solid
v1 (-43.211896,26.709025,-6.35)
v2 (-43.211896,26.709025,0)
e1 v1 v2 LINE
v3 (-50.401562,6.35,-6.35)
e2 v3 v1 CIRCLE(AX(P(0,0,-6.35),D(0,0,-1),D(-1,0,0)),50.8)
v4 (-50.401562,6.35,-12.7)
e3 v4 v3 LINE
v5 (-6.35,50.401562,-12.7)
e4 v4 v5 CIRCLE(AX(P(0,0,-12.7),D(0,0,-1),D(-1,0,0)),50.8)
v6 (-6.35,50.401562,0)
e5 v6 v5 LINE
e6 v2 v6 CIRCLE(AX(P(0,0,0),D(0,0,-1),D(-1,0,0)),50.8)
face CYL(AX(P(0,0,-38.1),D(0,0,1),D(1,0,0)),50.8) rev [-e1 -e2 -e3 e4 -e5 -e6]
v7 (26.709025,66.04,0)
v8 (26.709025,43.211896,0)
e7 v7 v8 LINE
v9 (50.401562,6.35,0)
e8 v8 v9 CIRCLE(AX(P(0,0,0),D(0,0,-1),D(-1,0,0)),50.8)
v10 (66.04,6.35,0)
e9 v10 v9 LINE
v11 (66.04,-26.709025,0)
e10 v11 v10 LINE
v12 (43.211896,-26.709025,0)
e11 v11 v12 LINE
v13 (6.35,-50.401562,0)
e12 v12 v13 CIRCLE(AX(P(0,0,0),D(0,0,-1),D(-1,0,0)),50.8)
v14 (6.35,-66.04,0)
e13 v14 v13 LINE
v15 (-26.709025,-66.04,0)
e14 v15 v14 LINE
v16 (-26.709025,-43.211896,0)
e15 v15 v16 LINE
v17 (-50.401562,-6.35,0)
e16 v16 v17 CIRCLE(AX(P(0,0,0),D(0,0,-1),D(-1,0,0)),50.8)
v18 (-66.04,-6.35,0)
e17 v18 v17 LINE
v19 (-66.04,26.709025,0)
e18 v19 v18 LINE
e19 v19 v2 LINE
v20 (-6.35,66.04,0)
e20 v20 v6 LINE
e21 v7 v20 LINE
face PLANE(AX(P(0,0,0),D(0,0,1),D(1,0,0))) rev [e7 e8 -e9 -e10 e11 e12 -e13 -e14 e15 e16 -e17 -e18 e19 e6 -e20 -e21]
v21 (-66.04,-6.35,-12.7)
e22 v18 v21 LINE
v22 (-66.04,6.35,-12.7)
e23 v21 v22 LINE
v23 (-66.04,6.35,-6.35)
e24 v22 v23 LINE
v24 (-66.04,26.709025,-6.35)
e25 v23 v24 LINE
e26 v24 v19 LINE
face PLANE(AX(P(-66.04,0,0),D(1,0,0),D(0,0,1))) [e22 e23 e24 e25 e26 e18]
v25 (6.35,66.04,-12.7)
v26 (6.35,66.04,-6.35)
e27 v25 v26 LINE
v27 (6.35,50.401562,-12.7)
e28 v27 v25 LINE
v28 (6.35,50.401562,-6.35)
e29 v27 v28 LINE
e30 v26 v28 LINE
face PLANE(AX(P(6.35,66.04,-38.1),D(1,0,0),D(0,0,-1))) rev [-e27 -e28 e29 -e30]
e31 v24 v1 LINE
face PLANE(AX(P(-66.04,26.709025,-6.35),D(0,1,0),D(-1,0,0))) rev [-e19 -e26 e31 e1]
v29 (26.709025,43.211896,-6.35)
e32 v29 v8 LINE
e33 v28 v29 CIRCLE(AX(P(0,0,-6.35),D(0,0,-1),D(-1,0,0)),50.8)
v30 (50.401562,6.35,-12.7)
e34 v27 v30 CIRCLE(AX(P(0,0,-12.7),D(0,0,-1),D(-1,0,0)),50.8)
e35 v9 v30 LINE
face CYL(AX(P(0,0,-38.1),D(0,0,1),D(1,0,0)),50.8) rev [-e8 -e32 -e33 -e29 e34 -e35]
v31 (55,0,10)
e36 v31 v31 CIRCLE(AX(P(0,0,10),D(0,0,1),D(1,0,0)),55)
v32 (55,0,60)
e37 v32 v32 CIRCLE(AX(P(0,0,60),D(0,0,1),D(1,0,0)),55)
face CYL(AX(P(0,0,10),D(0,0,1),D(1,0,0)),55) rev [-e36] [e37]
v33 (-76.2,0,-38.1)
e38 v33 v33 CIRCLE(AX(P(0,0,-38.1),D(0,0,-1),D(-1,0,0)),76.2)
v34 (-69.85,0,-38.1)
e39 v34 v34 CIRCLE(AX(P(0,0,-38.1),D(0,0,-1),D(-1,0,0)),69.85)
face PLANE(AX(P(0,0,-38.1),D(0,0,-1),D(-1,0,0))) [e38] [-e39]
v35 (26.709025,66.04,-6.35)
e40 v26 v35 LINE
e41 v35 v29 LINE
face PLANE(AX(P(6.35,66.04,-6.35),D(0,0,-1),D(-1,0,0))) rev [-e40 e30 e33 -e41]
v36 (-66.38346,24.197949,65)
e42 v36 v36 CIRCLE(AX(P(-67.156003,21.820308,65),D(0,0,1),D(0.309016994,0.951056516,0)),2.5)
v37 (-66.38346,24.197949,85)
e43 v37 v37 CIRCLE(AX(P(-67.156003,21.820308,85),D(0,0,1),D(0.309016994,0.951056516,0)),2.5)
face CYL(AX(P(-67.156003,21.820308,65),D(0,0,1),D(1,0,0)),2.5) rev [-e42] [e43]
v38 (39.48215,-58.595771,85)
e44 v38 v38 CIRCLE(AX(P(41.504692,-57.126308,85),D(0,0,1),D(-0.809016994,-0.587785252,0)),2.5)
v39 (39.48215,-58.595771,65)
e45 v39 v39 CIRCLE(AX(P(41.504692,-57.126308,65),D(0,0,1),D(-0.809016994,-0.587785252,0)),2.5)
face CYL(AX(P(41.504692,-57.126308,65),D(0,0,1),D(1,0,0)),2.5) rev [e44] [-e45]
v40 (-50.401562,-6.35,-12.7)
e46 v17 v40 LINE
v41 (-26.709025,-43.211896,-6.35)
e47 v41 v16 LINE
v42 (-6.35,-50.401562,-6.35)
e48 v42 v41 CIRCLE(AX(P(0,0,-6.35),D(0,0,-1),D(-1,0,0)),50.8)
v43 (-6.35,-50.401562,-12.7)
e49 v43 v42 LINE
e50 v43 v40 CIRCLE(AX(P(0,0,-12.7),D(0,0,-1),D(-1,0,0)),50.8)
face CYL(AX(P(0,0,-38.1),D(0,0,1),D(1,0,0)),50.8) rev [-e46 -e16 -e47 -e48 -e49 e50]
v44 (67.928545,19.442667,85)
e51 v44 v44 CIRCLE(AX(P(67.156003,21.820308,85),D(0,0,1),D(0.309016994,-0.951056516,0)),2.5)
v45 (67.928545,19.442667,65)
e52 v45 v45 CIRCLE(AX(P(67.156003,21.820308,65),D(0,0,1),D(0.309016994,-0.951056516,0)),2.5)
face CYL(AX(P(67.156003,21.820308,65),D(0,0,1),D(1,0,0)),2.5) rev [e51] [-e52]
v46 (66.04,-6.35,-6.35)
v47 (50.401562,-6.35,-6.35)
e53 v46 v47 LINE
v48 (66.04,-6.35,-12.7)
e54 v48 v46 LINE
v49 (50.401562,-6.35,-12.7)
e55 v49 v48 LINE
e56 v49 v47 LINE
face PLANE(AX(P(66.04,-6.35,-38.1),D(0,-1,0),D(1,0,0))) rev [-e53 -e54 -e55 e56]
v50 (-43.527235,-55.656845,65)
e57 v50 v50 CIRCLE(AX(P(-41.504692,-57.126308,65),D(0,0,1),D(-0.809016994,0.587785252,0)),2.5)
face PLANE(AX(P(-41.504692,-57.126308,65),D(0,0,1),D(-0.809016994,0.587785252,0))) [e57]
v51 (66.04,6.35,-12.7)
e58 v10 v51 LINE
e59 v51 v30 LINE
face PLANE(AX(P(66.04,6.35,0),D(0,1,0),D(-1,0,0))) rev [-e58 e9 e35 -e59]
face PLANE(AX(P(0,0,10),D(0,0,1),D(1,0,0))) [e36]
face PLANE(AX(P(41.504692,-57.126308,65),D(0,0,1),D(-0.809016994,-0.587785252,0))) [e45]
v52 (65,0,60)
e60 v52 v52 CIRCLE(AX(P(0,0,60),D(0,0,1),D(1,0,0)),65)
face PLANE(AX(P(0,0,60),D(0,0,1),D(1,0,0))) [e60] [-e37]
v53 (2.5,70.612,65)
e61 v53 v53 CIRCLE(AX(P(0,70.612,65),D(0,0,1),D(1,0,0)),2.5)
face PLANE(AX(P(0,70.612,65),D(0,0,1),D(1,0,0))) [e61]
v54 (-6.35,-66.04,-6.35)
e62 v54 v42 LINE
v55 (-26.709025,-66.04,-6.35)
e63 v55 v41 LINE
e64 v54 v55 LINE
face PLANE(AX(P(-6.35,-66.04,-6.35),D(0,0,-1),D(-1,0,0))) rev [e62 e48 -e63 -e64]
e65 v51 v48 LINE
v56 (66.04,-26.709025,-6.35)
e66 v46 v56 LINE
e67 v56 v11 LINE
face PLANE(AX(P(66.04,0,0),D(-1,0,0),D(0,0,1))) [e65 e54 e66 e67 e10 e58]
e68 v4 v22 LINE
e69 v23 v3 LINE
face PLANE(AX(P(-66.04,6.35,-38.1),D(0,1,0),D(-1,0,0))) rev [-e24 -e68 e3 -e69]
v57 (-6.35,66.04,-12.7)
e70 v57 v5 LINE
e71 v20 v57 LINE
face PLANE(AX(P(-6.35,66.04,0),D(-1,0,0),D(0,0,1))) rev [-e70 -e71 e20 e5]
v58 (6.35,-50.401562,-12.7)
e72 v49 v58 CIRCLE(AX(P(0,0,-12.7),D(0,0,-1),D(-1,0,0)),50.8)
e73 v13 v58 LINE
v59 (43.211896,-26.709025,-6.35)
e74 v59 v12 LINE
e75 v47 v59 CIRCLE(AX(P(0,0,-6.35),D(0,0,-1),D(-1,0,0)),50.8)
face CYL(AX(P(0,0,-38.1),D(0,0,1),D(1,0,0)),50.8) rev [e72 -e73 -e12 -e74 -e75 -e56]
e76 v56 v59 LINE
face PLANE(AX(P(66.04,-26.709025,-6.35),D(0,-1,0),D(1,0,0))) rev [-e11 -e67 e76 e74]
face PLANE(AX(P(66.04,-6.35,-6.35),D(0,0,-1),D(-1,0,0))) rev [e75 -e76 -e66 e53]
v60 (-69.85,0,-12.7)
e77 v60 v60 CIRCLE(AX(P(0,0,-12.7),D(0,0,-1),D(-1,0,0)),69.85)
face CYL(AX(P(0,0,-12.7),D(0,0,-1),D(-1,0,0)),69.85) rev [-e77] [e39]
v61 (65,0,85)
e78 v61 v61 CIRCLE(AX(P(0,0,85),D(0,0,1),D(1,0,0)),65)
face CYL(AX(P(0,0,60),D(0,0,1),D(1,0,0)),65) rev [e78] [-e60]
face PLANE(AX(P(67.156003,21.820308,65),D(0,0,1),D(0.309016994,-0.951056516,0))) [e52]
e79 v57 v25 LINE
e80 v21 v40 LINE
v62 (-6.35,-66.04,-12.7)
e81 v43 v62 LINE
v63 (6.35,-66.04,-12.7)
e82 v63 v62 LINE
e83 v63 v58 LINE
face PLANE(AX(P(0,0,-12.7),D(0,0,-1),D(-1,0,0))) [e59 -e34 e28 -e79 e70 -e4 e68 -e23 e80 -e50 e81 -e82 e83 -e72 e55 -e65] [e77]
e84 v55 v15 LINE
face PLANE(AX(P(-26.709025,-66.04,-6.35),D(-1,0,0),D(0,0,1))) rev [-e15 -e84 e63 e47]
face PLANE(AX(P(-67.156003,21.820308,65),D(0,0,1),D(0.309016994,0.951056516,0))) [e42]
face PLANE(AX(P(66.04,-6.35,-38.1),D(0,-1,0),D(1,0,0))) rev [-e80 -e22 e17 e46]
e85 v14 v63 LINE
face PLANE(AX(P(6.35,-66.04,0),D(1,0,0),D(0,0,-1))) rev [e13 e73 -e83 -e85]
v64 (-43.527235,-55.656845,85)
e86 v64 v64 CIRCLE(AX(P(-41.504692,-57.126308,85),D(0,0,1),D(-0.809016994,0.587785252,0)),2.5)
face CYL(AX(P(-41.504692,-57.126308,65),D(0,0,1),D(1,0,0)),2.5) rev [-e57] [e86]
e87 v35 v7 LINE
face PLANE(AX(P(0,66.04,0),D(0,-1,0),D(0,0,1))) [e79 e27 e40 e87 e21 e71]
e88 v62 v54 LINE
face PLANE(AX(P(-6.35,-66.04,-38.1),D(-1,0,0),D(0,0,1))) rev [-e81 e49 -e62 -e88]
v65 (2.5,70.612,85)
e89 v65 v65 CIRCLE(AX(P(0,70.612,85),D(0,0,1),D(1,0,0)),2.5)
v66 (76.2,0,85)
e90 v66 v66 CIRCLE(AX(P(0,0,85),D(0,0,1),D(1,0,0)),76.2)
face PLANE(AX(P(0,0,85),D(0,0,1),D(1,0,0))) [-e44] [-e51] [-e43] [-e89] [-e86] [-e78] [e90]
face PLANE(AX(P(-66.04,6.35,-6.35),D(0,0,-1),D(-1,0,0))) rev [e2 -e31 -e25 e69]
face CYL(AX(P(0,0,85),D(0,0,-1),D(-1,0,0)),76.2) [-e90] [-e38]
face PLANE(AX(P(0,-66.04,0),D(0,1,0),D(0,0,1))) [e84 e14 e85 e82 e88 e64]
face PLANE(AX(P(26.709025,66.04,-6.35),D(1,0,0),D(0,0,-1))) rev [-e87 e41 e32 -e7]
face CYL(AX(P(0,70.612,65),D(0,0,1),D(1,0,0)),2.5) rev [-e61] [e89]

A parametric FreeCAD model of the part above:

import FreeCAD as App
import Part
import Sketcher
Q = App.Units.Quantity


def add_polygon(sketch, points):
    """Adds a closed chain of lines whose ends are joined by coincident constraints."""
    first, n = sketch.GeometryCount, len(points)
    for a, b in zip(points, points[1:] + points[:1]):
        sketch.addGeometry(Part.LineSegment(App.Vector(*a, 0), App.Vector(*b, 0)), False)
    for i in range(n):
        sketch.addConstraint(Sketcher.Constraint("Coincident", first + i, 2, first + (i + 1) % n, 1))

doc = App.newDocument("Part")
params = doc.addObject("Spreadsheet::Sheet", "Params")
for row, (alias, value) in enumerate([
    ("sketch1_diameter", "6 in"),
    ("pad1_length", "85 mm"),
    ("pocket1_length", "25 mm"),
    ("pocket2_length", "50 mm"),
    ("pocket3_length", "20 mm"),
    ("sketch5_diameter", "6 in"),
    ("sketch5_diameter2", "4 in"),
    ("pad2_length", "1.5 in"),
    ("sketch6_width", "0.5 in"),
    ("sketch6_height", "1.5 in"),
    ("sketch6_height2", "1.25 in"),
    ("pocket4_length", "2.6 in"),
    ("sketch7_diameter", "5.5 in"),
    ("pocket5_length", "1 in"),
], start=1):
    params.set(f"A{row}", alias)
    params.set(f"B{row}", "=" + value)
    params.setAlias(f"B{row}", alias)

body = doc.addObject("PartDesign::Body", "Body")

# Sketch on XY plane
sketch1 = body.newObject("Sketcher::SketchObject", "Sketch")
sketch1.AttachmentSupport = (doc.getObject("XY_Plane"), [""])
sketch1.MapMode = "FlatFace"
sketch1.addGeometry(Part.Circle(App.Vector(0, 0, 0), App.Vector(0, 0, 1), 76.2), False)
sketch1.addConstraint(Sketcher.Constraint("Coincident", 0, 3, -1, 1))
sketch1.addConstraint(Sketcher.Constraint("Diameter", 0, Q("6 in")))
sketch1.setExpression("Constraints[1]", "Params.sketch1_diameter")
pad1 = body.newObject("PartDesign::Pad", "Pad")
pad1.Profile = sketch1
pad1.setExpression("Length", "Params.pad1_length")

# Sketch on XY plane
sketch2 = body.newObject("Sketcher::SketchObject", "Sketch001")
sketch2.AttachmentSupport = (doc.getObject("XY_Plane"), [""])
sketch2.MapMode = "FlatFace"
sketch2.AttachmentOffset = App.Placement(App.Vector(0, 0, 85), App.Rotation())
sketch2.addGeometry(Part.Circle(App.Vector(0, 0, 0), App.Vector(0, 0, 1), 65), False)
sketch2.addConstraint(Sketcher.Constraint("Coincident", 0, 3, -1, 1))
sketch2.addConstraint(Sketcher.Constraint("Diameter", 0, Q("130 mm")))
pocket1 = body.newObject("PartDesign::Pocket", "Pocket")
pocket1.Profile = sketch2
pocket1.setExpression("Length", "Params.pocket1_length")

# Sketch on XY plane
sketch3 = body.newObject("Sketcher::SketchObject", "Sketch002")
sketch3.AttachmentSupport = (doc.getObject("XY_Plane"), [""])
sketch3.MapMode = "FlatFace"
sketch3.AttachmentOffset = App.Placement(App.Vector(0, 0, 60), App.Rotation())
sketch3.addGeometry(Part.Circle(App.Vector(0, 0, 0), App.Vector(0, 0, 1), 55), False)
sketch3.addConstraint(Sketcher.Constraint("Coincident", 0, 3, -1, 1))
sketch3.addConstraint(Sketcher.Constraint("Diameter", 0, Q("110 mm")))
pocket2 = body.newObject("PartDesign::Pocket", "Pocket001")
pocket2.Profile = sketch3
pocket2.setExpression("Length", "Params.pocket2_length")

# Sketch on XY plane
sketch4 = body.newObject("Sketcher::SketchObject", "Sketch003")
sketch4.AttachmentSupport = (doc.getObject("XY_Plane"), [""])
sketch4.MapMode = "FlatFace"
sketch4.AttachmentOffset = App.Placement(App.Vector(0, 0, 85), App.Rotation())
sketch4.addGeometry(Part.Circle(App.Vector(0, 70.612, 0), App.Vector(0, 0, 1), 2.5), False)
sketch4.addConstraint(Sketcher.Constraint("PointOnObject", 0, 3, -2))
sketch4.addConstraint(Sketcher.Constraint("Diameter", 0, Q("5 mm")))
sketch4.addConstraint(Sketcher.Constraint("DistanceY", -1, 1, 0, 3, Q("2.78 in")))
pocket3 = body.newObject("PartDesign::Pocket", "Pocket002")
pocket3.Profile = sketch4
pocket3.setExpression("Length", "Params.pocket3_length")
doc.recompute()

polarpattern = body.newObject("PartDesign::PolarPattern", "PolarPattern")
polarpattern.Originals = [pocket3]
polarpattern.Axis = (doc.getObject("Z_Axis"), [""])
polarpattern.Angle = 360
polarpattern.Occurrences = 5
body.Tip = polarpattern

# Sketch on XY plane
sketch5 = body.newObject("Sketcher::SketchObject", "Sketch004")
sketch5.AttachmentSupport = (doc.getObject("XY_Plane"), [""])
sketch5.MapMode = "FlatFace"
sketch5.AttachmentOffset = App.Placement(App.Vector(0, 0, -1.5 * 25.4), App.Rotation())
sketch5.addGeometry(Part.Circle(App.Vector(0, 0, 0), App.Vector(0, 0, 1), 76.2), False)
sketch5.addGeometry(Part.Circle(App.Vector(0, 0, 0), App.Vector(0, 0, 1), 50.8), False)
sketch5.addConstraint(Sketcher.Constraint("Coincident", 0, 3, -1, 1))
sketch5.addConstraint(Sketcher.Constraint("Coincident", 1, 3, -1, 1))
sketch5.addConstraint(Sketcher.Constraint("Diameter", 0, Q("6 in")))
sketch5.addConstraint(Sketcher.Constraint("Diameter", 1, Q("4 in")))
sketch5.setExpression("Constraints[2]", "Params.sketch5_diameter")
sketch5.setExpression("Constraints[3]", "Params.sketch5_diameter2")
pad2 = body.newObject("PartDesign::Pad", "Pad001")
pad2.Profile = sketch5
pad2.setExpression("Length", "Params.pad2_length")

# Sketch on XZ plane
sketch6 = body.newObject("Sketcher::SketchObject", "Sketch005")
sketch6.AttachmentSupport = (doc.getObject("XZ_Plane"), [""])
sketch6.MapMode = "FlatFace"
add_polygon(sketch6, [(6.35, 0), (6.35, -38.1), (-6.35, -38.1), (-6.35, -6.35), (-26.709025, -6.35), (-26.709025, 0)])  # lines 0-5
sketch6.addConstraint(Sketcher.Constraint("Vertical", 0))
sketch6.addConstraint(Sketcher.Constraint("Horizontal", 1))
sketch6.addConstraint(Sketcher.Constraint("Vertical", 2))
sketch6.addConstraint(Sketcher.Constraint("Horizontal", 3))
sketch6.addConstraint(Sketcher.Constraint("Vertical", 4))
sketch6.addConstraint(Sketcher.Constraint("Horizontal", 5))
sketch6.addConstraint(Sketcher.Constraint("PointOnObject", 4, 2, -1))
sketch6.addConstraint(Sketcher.Constraint("DistanceX", 1, 2, 1, 1, Q("0.5 in")))
sketch6.addConstraint(Sketcher.Constraint("DistanceY", 0, 2, 0, 1, Q("1.5 in")))
sketch6.addConstraint(Sketcher.Constraint("DistanceY", 2, 1, 2, 2, Q("1.25 in")))
sketch6.addConstraint(Sketcher.Constraint("DistanceX", -1, 1, 0, 2, Q("0.25 in")))
sketch6.addConstraint(Sketcher.Constraint("DistanceX", 3, 2, 3, 1, Q("20.359025 mm")))
sketch6.setExpression("Constraints[13]", "Params.sketch6_width")
sketch6.setExpression("Constraints[14]", "Params.sketch6_height")
sketch6.setExpression("Constraints[15]", "Params.sketch6_height2")
pocket4 = body.newObject("PartDesign::Pocket", "Pocket003")
pocket4.Profile = sketch6
pocket4.setExpression("Length", "Params.pocket4_length")
pocket4.Reversed = True
doc.recompute()

polarpattern2 = body.newObject("PartDesign::PolarPattern", "PolarPattern001")
polarpattern2.Originals = [pocket4]
polarpattern2.Axis = (doc.getObject("Z_Axis"), [""])
polarpattern2.Angle = 360
polarpattern2.Occurrences = 4
body.Tip = polarpattern2

# Sketch on XY plane
sketch7 = body.newObject("Sketcher::SketchObject", "Sketch006")
sketch7.AttachmentSupport = (doc.getObject("XY_Plane"), [""])
sketch7.MapMode = "FlatFace"
sketch7.AttachmentOffset = App.Placement(App.Vector(0, 0, -1.5 * 25.4), App.Rotation())
sketch7.addGeometry(Part.Circle(App.Vector(0, 0, 0), App.Vector(0, 0, 1), 69.85), False)
sketch7.addConstraint(Sketcher.Constraint("Coincident", 0, 3, -1, 1))
sketch7.addConstraint(Sketcher.Constraint("Diameter", 0, Q("5.5 in")))
sketch7.setExpression("Constraints[1]", "Params.sketch7_diameter")
pocket5 = body.newObject("PartDesign::Pocket", "Pocket004")
pocket5.Profile = sketch7
pocket5.setExpression("Length", "Params.pocket5_length")
pocket5.Reversed = True

doc.recompute()
